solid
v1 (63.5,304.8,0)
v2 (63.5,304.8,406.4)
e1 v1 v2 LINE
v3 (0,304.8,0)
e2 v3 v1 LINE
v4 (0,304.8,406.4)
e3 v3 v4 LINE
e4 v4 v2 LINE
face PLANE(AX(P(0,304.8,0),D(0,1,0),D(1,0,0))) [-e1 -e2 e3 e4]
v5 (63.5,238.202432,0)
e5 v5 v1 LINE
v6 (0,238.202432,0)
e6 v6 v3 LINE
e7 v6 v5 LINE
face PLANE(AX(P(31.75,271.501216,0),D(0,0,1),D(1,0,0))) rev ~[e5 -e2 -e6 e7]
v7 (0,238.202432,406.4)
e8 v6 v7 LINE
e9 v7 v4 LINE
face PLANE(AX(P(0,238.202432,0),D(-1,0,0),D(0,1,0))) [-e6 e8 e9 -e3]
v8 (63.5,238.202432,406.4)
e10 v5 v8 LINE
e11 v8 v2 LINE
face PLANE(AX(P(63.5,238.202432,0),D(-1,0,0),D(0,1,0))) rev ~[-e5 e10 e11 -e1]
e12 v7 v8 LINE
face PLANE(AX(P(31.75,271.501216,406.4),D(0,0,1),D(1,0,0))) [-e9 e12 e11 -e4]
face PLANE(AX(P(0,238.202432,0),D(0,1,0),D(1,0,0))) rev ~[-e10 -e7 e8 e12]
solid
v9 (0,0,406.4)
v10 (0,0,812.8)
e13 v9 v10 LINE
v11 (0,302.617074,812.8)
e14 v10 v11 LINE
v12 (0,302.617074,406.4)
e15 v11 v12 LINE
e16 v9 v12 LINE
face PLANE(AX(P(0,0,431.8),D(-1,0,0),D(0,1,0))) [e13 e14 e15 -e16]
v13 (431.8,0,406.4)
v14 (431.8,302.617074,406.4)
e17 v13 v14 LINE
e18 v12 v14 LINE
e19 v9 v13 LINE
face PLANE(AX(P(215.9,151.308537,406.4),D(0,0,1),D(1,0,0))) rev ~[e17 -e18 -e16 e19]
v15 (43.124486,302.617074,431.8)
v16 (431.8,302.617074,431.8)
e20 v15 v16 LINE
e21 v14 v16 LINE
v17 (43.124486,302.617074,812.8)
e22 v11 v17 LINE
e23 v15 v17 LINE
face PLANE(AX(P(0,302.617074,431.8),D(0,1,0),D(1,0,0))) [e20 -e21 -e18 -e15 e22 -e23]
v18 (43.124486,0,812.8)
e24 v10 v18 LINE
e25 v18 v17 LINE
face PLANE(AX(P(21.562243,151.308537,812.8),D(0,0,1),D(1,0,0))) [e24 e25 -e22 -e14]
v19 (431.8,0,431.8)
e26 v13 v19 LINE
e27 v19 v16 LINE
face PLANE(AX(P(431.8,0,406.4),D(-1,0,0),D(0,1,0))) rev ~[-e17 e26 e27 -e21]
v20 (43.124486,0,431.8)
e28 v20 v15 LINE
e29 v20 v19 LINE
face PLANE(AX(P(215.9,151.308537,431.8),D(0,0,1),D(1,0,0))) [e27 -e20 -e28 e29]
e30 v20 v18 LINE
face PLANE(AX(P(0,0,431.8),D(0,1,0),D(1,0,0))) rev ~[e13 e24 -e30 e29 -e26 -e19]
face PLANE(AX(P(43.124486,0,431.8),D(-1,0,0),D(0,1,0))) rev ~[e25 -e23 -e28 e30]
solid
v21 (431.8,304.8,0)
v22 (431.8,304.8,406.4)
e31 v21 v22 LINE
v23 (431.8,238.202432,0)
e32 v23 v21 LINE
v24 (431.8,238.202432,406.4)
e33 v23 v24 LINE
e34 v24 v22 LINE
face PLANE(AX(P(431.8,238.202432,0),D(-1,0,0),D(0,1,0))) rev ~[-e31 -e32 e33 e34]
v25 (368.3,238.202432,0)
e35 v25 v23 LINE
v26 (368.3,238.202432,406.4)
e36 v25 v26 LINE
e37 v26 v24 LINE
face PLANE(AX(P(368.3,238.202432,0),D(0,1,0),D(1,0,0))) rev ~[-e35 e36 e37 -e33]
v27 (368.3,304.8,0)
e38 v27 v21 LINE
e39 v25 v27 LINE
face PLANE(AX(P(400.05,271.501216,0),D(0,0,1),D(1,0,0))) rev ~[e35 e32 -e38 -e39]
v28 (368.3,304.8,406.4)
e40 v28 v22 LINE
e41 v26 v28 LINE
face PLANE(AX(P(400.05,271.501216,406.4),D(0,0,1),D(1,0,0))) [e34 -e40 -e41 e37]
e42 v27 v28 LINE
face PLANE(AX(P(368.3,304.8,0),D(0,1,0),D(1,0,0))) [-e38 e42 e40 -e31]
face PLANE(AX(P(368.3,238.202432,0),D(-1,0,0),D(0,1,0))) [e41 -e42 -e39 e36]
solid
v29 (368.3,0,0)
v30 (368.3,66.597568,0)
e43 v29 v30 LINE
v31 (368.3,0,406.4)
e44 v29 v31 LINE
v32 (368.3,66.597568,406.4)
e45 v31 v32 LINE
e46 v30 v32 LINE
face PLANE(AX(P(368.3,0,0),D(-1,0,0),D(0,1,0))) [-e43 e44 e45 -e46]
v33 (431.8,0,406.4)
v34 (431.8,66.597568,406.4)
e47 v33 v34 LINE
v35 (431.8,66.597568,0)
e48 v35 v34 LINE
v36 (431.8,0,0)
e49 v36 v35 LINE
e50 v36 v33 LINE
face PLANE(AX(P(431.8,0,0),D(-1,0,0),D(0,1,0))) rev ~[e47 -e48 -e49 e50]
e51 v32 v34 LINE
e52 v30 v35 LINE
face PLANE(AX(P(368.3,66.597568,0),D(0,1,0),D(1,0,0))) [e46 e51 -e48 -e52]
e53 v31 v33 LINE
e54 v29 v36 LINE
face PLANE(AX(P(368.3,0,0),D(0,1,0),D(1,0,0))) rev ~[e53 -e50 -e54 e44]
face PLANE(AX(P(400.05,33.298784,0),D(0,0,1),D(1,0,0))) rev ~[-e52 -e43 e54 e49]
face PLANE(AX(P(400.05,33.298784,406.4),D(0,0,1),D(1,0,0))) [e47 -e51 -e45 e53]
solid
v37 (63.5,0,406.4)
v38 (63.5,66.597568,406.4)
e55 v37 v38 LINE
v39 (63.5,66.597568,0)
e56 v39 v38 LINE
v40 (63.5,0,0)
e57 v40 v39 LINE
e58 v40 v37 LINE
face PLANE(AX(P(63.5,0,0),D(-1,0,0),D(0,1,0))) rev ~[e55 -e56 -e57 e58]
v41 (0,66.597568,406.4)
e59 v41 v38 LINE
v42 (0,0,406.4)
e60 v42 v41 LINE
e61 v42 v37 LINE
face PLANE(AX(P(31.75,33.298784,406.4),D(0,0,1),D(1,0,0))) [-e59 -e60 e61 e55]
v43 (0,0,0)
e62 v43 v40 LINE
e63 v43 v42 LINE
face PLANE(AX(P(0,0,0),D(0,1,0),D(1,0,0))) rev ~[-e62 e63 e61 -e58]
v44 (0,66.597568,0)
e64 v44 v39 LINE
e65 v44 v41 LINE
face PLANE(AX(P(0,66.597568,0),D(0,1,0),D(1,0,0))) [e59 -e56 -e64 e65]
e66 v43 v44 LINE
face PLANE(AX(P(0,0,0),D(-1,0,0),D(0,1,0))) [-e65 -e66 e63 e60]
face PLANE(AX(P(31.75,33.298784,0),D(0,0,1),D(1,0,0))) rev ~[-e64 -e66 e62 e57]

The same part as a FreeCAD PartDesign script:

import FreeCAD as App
import Part
import Sketcher
from FreeCAD import Vector
Q = App.Units.Quantity

doc = App.newDocument("Part")
body = doc.addObject("PartDesign::Body", "Body")
body.AllowCompound = True

sketch1 = body.newObject("Sketcher::SketchObject", "Sketch")
sketch1.AttachmentSupport = (doc.getObject("XY_Plane"), [""])
sketch1.MapMode = "FlatFace"
sketch1.addGeometry([
    Part.LineSegment(Vector(368, 67, 0), Vector(368, 0, 0)),
    Part.LineSegment(Vector(368, 0, 0), Vector(432, 0, 0)),
    Part.LineSegment(Vector(432, 0, 0), Vector(432, 67, 0)),
    Part.LineSegment(Vector(432, 67, 0), Vector(368, 67, 0)),
    Part.LineSegment(Vector(0, 67, 0), Vector(0, 0, 0)),
    Part.LineSegment(Vector(0, 0, 0), Vector(64, 0, 0)),
    Part.LineSegment(Vector(64, 0, 0), Vector(64, 67, 0)),
    Part.LineSegment(Vector(64, 67, 0), Vector(0, 67, 0)),
    Part.LineSegment(Vector(0, 305, 0), Vector(0, 238, 0)),
    Part.LineSegment(Vector(0, 238, 0), Vector(64, 238, 0)),
    Part.LineSegment(Vector(64, 238, 0), Vector(64, 305, 0)),
    Part.LineSegment(Vector(64, 305, 0), Vector(0, 305, 0)),
    Part.LineSegment(Vector(368, 305, 0), Vector(368, 238, 0)),
    Part.LineSegment(Vector(368, 238, 0), Vector(432, 238, 0)),
    Part.LineSegment(Vector(432, 238, 0), Vector(432, 305, 0)),
    Part.LineSegment(Vector(432, 305, 0), Vector(368, 305, 0)),
], False)
sketch1.addConstraint([
    Sketcher.Constraint("Coincident", 0, 2, 1, 1),
    Sketcher.Constraint("Coincident", 1, 2, 2, 1),
    Sketcher.Constraint("Coincident", 2, 2, 3, 1),
    Sketcher.Constraint("Coincident", 3, 2, 0, 1),
    Sketcher.Constraint("Coincident", 4, 2, 5, 1),
    Sketcher.Constraint("Coincident", 5, 2, 6, 1),
    Sketcher.Constraint("Coincident", 6, 2, 7, 1),
    Sketcher.Constraint("Coincident", 7, 2, 4, 1),
    Sketcher.Constraint("Coincident", 8, 2, 9, 1),
    Sketcher.Constraint("Coincident", 9, 2, 10, 1),
    Sketcher.Constraint("Coincident", 10, 2, 11, 1),
    Sketcher.Constraint("Coincident", 11, 2, 8, 1),
    Sketcher.Constraint("Coincident", 12, 2, 13, 1),
    Sketcher.Constraint("Coincident", 13, 2, 14, 1),
    Sketcher.Constraint("Coincident", 14, 2, 15, 1),
    Sketcher.Constraint("Coincident", 15, 2, 12, 1),
    Sketcher.Constraint("Vertical", 0),
    Sketcher.Constraint("Horizontal", 1),
    Sketcher.Constraint("Vertical", 2),
    Sketcher.Constraint("Horizontal", 3),
    Sketcher.Constraint("Vertical", 4),
    Sketcher.Constraint("Horizontal", 5),
    Sketcher.Constraint("Vertical", 6),
    Sketcher.Constraint("Horizontal", 7),
    Sketcher.Constraint("Vertical", 8),
    Sketcher.Constraint("Horizontal", 9),
    Sketcher.Constraint("Vertical", 10),
    Sketcher.Constraint("Horizontal", 11),
    Sketcher.Constraint("Vertical", 12),
    Sketcher.Constraint("Horizontal", 13),
    Sketcher.Constraint("Vertical", 14),
    Sketcher.Constraint("Horizontal", 15),
    Sketcher.Constraint("Coincident", 4, 2, -1, 1),
    Sketcher.Constraint("PointOnObject", 0, 2, -1),
    Sketcher.Constraint("PointOnObject", 8, 2, -2),
    Sketcher.Constraint("Horizontal", 3, 2, 6, 2),
    Sketcher.Constraint("Horizontal", 9, 2, 12, 2),
    Sketcher.Constraint("Horizontal", 11, 2, 14, 2),
    Sketcher.Constraint("Vertical", 6, 2, 9, 2),
    Sketcher.Constraint("Vertical", 3, 2, 12, 2),
    Sketcher.Constraint("Vertical", 2, 2, 13, 2),
    Sketcher.Constraint("Equal", 3, 5),
    Sketcher.Constraint("Equal", 6, 8),
    Sketcher.Constraint("DistanceX", 1, 1, 1, 2, Q("2.5 in")),
    Sketcher.Constraint("DistanceX", -1, 1, 1, 2, Q("17 in")),
    Sketcher.Constraint("DistanceY", -1, 1, 10, 2, Q("12 in")),
    Sketcher.Constraint("DistanceY", 8, 2, 8, 1, Q("66.597568 mm")),
])
pad1 = body.newObject("PartDesign::Pad", "Pad")
pad1.Profile = sketch1
pad1.Length = Q("16 in")
body2 = doc.addObject("PartDesign::Body", "Body001")

sketch2 = body2.newObject("Sketcher::SketchObject", "Sketch001")
sketch2.AttachmentSupport = (doc.getObject("XY_Plane001"), [""])
sketch2.MapMode = "FlatFace"
sketch2.AttachmentOffset = App.Placement(Vector(0, 0, 16 * 25.4), App.Rotation())
sketch2.addGeometry([
    Part.LineSegment(Vector(0, 303, 0), Vector(0, 0, 0)),
    Part.LineSegment(Vector(0, 0, 0), Vector(432, 0, 0)),
    Part.LineSegment(Vector(432, 0, 0), Vector(432, 303, 0)),
    Part.LineSegment(Vector(432, 303, 0), Vector(0, 303, 0)),
], False)
sketch2.addConstraint([
    Sketcher.Constraint("Coincident", 0, 2, 1, 1),
    Sketcher.Constraint("Coincident", 1, 2, 2, 1),
    Sketcher.Constraint("Coincident", 2, 2, 3, 1),
    Sketcher.Constraint("Coincident", 3, 2, 0, 1),
    Sketcher.Constraint("Vertical", 0),
    Sketcher.Constraint("Horizontal", 1),
    Sketcher.Constraint("Vertical", 2),
    Sketcher.Constraint("Horizontal", 3),
    Sketcher.Constraint("Coincident", 0, 2, -1, 1),
    Sketcher.Constraint("DistanceX", 1, 1, 1, 2, Q("17 in")),
    Sketcher.Constraint("DistanceY", 0, 2, 0, 1, Q("302.617073 mm")),
])
pad2 = body2.newObject("PartDesign::Pad", "Pad001")
pad2.Profile = sketch2
pad2.Length = Q("1 in")

sketch3 = body2.newObject("Sketcher::SketchObject", "Sketch002")
sketch3.AttachmentSupport = (doc.getObject("XY_Plane001"), [""])
sketch3.MapMode = "FlatFace"
sketch3.AttachmentOffset = App.Placement(Vector(0, 0, 17 * 25.4), App.Rotation())
sketch3.addGeometry([
    Part.LineSegment(Vector(0, 303, 0), Vector(0, 0, 0)),
    Part.LineSegment(Vector(0, 0, 0), Vector(43, 0, 0)),
    Part.LineSegment(Vector(43, 0, 0), Vector(43, 303, 0)),
    Part.LineSegment(Vector(43, 303, 0), Vector(0, 303, 0)),
], False)
sketch3.addConstraint([
    Sketcher.Constraint("Coincident", 0, 2, 1, 1),
    Sketcher.Constraint("Coincident", 1, 2, 2, 1),
    Sketcher.Constraint("Coincident", 2, 2, 3, 1),
    Sketcher.Constraint("Coincident", 3, 2, 0, 1),
    Sketcher.Constraint("Vertical", 0),
    Sketcher.Constraint("Horizontal", 1),
    Sketcher.Constraint("Vertical", 2),
    Sketcher.Constraint("Horizontal", 3),
    Sketcher.Constraint("Coincident", 0, 2, -1, 1),
    Sketcher.Constraint("DistanceX", 1, 1, 1, 2, Q("43.124486 mm")),
    Sketcher.Constraint("DistanceY", 0, 2, 0, 1, Q("302.617073 mm")),
])
pad3 = body2.newObject("PartDesign::Pad", "Pad002")
pad3.Profile = sketch3
pad3.Length = Q("15 in")

doc.recompute()
